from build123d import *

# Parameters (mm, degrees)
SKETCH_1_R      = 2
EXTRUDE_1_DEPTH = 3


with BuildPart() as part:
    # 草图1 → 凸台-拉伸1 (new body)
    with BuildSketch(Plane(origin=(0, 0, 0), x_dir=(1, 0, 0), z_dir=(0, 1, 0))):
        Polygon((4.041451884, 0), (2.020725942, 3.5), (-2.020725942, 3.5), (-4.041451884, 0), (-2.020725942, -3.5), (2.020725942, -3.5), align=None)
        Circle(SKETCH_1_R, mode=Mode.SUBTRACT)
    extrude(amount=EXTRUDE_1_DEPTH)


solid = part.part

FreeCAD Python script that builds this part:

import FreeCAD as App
import Part
import Sketcher
Q = App.Units.Quantity

doc = App.newDocument("Part")
body = doc.addObject("PartDesign::Body", "Body")

# Sketch on XZ plane
sketch1 = body.newObject("Sketcher::SketchObject", "Sketch")
sketch1.AttachmentSupport = (doc.getObject("XZ_Plane"), [""])
sketch1.MapMode = "FlatFace"
sketch1.addGeometry([
    Part.LineSegment(App.Vector(4, 0, 0), App.Vector(2, -3.5, 0)),  # 0
    Part.LineSegment(App.Vector(2, -3.5, 0), App.Vector(-2, -3.5, 0)),  # 1
    Part.LineSegment(App.Vector(-2, -3.5, 0), App.Vector(-4, 0, 0)),  # 2
    Part.LineSegment(App.Vector(-4, 0, 0), App.Vector(-2, 3.5, 0)),  # 3
    Part.LineSegment(App.Vector(-2, 3.5, 0), App.Vector(2, 3.5, 0)),  # 4
    Part.LineSegment(App.Vector(2, 3.5, 0), App.Vector(4, 0, 0)),  # 5
    Part.Circle(App.Vector(0, 0, 0), App.Vector(0, 0, 1), 2),  # 6
], False)
sketch1.addConstraint([
    Sketcher.Constraint("Coincident", 0, 2, 1, 1),
    Sketcher.Constraint("Coincident", 1, 2, 2, 1),
    Sketcher.Constraint("Coincident", 2, 2, 3, 1),
    Sketcher.Constraint("Coincident", 3, 2, 4, 1),
    Sketcher.Constraint("Coincident", 4, 2, 5, 1),
    Sketcher.Constraint("Coincident", 5, 2, 0, 1),
    Sketcher.Constraint("Horizontal", 1),
    Sketcher.Constraint("Horizontal", 4),
    Sketcher.Constraint("Coincident", 6, 3, -1, 1),
    Sketcher.Constraint("Symmetric", 0, 2, 3, 2, -1, 1),
    Sketcher.Constraint("Symmetric", 2, 2, 5, 2, -1, 1),
    Sketcher.Constraint("PointOnObject", 2, 2, -1),
    Sketcher.Constraint("Parallel", 2, 5),
    Sketcher.Constraint("Vertical", 1, 2, 3, 2),
    Sketcher.Constraint("Diameter", 6, 4.0),
    Sketcher.Constraint("Angle", 0, Q("-120 deg")),
    Sketcher.Constraint("DistanceY", 1, 2, 3, 2, 7.0),
    Sketcher.Constraint("DistanceX", 1, 2, 1, 1, 4.041452),
])
pad1 = body.newObject("PartDesign::Pad", "Pad")
pad1.Profile = sketch1
pad1.Length = 3
pad1.Reversed = True

doc.recompute()
